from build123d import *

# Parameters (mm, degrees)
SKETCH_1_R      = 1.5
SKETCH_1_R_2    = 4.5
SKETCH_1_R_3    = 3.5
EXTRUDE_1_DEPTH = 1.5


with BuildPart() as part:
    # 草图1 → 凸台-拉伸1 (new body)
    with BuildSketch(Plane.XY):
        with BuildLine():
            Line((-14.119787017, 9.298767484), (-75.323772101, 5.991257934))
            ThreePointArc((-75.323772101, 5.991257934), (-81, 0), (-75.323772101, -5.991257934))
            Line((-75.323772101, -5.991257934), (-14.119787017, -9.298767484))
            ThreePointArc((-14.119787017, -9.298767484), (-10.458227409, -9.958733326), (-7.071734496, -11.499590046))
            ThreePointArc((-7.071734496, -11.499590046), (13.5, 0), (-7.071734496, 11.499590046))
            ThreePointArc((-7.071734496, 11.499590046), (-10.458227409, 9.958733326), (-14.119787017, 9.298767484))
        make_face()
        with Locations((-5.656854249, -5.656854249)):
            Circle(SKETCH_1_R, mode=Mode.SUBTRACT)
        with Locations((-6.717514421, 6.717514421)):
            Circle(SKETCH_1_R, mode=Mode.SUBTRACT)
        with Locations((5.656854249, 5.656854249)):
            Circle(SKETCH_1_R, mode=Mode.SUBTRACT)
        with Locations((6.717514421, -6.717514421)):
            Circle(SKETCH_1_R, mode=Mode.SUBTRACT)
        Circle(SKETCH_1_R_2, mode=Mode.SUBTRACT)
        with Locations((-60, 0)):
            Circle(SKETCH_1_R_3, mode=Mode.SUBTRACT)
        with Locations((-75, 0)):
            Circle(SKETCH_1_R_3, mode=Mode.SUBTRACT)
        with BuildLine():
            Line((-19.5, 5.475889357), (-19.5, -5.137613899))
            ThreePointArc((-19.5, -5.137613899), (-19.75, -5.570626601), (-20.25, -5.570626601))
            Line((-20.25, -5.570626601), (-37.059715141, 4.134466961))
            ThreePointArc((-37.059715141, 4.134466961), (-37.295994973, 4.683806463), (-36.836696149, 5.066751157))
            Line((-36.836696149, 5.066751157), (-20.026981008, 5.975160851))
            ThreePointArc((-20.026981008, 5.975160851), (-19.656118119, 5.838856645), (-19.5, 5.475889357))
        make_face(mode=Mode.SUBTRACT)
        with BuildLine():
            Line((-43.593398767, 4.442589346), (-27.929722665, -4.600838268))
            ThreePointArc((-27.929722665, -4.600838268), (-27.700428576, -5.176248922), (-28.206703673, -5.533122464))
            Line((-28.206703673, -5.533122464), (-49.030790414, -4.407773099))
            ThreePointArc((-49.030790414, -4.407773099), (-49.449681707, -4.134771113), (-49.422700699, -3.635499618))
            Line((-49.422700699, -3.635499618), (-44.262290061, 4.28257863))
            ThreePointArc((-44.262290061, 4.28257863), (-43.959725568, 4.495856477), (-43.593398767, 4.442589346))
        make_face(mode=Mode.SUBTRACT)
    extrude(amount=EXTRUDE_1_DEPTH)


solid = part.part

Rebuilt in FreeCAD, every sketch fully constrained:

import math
import FreeCAD as App
import Part
import Sketcher
Q = App.Units.Quantity

doc = App.newDocument("Part")
body = doc.addObject("PartDesign::Body", "Body")

# Sketch on XY plane
sketch1 = body.newObject("Sketcher::SketchObject", "Sketch")
sketch1.AttachmentSupport = (doc.getObject("XY_Plane"), [""])
sketch1.MapMode = "FlatFace"
sketch1.addGeometry([
    Part.LineSegment(App.Vector(-14.12, 9.3, 0), App.Vector(-75.32, 5.99, 0)),  # 0
    Part.ArcOfCircle(Part.Circle(App.Vector(-75, 0, 0), App.Vector(0, 0, 1), 6), math.radians(93), math.radians(267)),  # 1
    Part.LineSegment(App.Vector(-75.32, -5.99, 0), App.Vector(-14.12, -9.3, 0)),  # 2
    Part.ArcOfCircle(Part.Circle(App.Vector(-14.93, -24.28, 0), App.Vector(0, 0, 1), 15), math.radians(58), math.radians(87)),  # 3
    Part.ArcOfCircle(Part.Circle(App.Vector(0, 0, 0), App.Vector(0, 0, 1), 13.5), math.radians(-122), math.radians(122)),  # 4
    Part.ArcOfCircle(Part.Circle(App.Vector(-14.93, 24.28, 0), App.Vector(0, 0, 1), 15), math.radians(-87), math.radians(-58)),  # 5
    Part.ArcOfCircle(Part.Circle(App.Vector(-43.84, 4.01, 0), App.Vector(0, 0, 1), 0.5), math.radians(60), math.radians(147)),  # 6
    Part.LineSegment(App.Vector(-43.59, 4.44, 0), App.Vector(-27.93, -4.6, 0)),  # 7
    Part.ArcOfCircle(Part.Circle(App.Vector(-28.18, -5.03, 0), App.Vector(0, 0, 1), 0.5), math.radians(-93), math.radians(60)),  # 8
    Part.LineSegment(App.Vector(-28.21, -5.53, 0), App.Vector(-49.03, -4.41, 0)),  # 9
    Part.ArcOfCircle(Part.Circle(App.Vector(-49, -3.91, 0), App.Vector(0, 0, 1), 0.5), math.radians(147), math.radians(267)),  # 10
    Part.LineSegment(App.Vector(-49.42, -3.64, 0), App.Vector(-44.26, 4.28, 0)),  # 11
    Part.Circle(App.Vector(6.72, -6.72, 0), App.Vector(0, 0, 1), 1.5),  # 12
    Part.Circle(App.Vector(-5.66, -5.66, 0), App.Vector(0, 0, 1), 1.5),  # 13
    Part.Circle(App.Vector(-75, 0, 0), App.Vector(0, 0, 1), 3.5),  # 14
    Part.Circle(App.Vector(-60, 0, 0), App.Vector(0, 0, 1), 3.5),  # 15
    Part.ArcOfCircle(Part.Circle(App.Vector(-20, 5.48, 0), App.Vector(0, 0, 1), 0.5), math.radians(0), math.radians(93)),  # 16
    Part.LineSegment(App.Vector(-19.5, 5.48, 0), App.Vector(-19.5, -5.14, 0)),  # 17
    Part.ArcOfCircle(Part.Circle(App.Vector(-20, -5.14, 0), App.Vector(0, 0, 1), 0.5), math.radians(-120), math.radians(0)),  # 18
    Part.LineSegment(App.Vector(-20.25, -5.57, 0), App.Vector(-37.06, 4.13, 0)),  # 19
    Part.ArcOfCircle(Part.Circle(App.Vector(-36.81, 4.57, 0), App.Vector(0, 0, 1), 0.5), math.radians(93), math.radians(240)),  # 20
    Part.LineSegment(App.Vector(-36.84, 5.07, 0), App.Vector(-20.03, 5.98, 0)),  # 21
    Part.Circle(App.Vector(0, 0, 0), App.Vector(0, 0, 1), 4.5),  # 22
    Part.Circle(App.Vector(5.66, 5.66, 0), App.Vector(0, 0, 1), 1.5),  # 23
    Part.Circle(App.Vector(-6.72, 6.72, 0), App.Vector(0, 0, 1), 1.5),  # 24
], False)
sketch1.addConstraint([
    Sketcher.Constraint("Tangent", 0, 2, 1, 1),
    Sketcher.Constraint("Tangent", 1, 2, 2, 1),
    Sketcher.Constraint("Tangent", 2, 2, 3, 2),
    Sketcher.Constraint("Tangent", 3, 1, 4, 1),
    Sketcher.Constraint("Tangent", 4, 2, 5, 2),
    Sketcher.Constraint("Tangent", 5, 1, 0, 1),
    Sketcher.Constraint("Tangent", 6, 1, 7, 1),
    Sketcher.Constraint("Tangent", 7, 2, 8, 2),
    Sketcher.Constraint("Tangent", 8, 1, 9, 1),
    Sketcher.Constraint("Tangent", 9, 2, 10, 2),
    Sketcher.Constraint("Tangent", 10, 1, 11, 1),
    Sketcher.Constraint("Tangent", 11, 2, 6, 2),
    Sketcher.Constraint("Tangent", 16, 1, 17, 1),
    Sketcher.Constraint("Tangent", 17, 2, 18, 2),
    Sketcher.Constraint("Tangent", 18, 1, 19, 1),
    Sketcher.Constraint("Tangent", 19, 2, 20, 2),
    Sketcher.Constraint("Tangent", 20, 1, 21, 1),
    Sketcher.Constraint("Tangent", 21, 2, 16, 2),
    Sketcher.Constraint("Vertical", 17),
    Sketcher.Constraint("Coincident", 4, 3, -1, 1),
    Sketcher.Constraint("Coincident", 22, 3, -1, 1),
    Sketcher.Constraint("Coincident", 14, 3, 1, 3),
    Sketcher.Constraint("Equal", 3, 5),
    Sketcher.Constraint("Equal", 6, 8),
    Sketcher.Constraint("Equal", 8, 10),
    Sketcher.Constraint("Equal", 12, 13),
    Sketcher.Constraint("Equal", 14, 15),
    Sketcher.Constraint("Equal", 10, 16),
    Sketcher.Constraint("Equal", 16, 18),
    Sketcher.Constraint("Equal", 18, 20),
    Sketcher.Constraint("Equal", 13, 23),
    Sketcher.Constraint("Equal", 23, 24),
    Sketcher.Constraint("Symmetric", 13, 3, 23, 3, -1, 1),
    Sketcher.Constraint("Symmetric", 12, 3, 24, 3, -1, 1),
    Sketcher.Constraint("Symmetric", 0, 2, 1, 2, -1),
    Sketcher.Constraint("PointOnObject", 15, 3, -1),
    Sketcher.Constraint("Parallel", 2, 9),
    Sketcher.Constraint("Parallel", 7, 19),
    Sketcher.Constraint("Parallel", 0, 21),
    Sketcher.Constraint("Diameter", 12, 3.0),
    Sketcher.Constraint("Diameter", 14, 7.0),
    Sketcher.Constraint("Diameter", 22, 9.0),
    Sketcher.Constraint("Radius", 1, 6.0),
    Sketcher.Constraint("Radius", 3, 15.0),
    Sketcher.Constraint("Radius", 4, 13.5),
    Sketcher.Constraint("Radius", 6, 0.5),
    Sketcher.Constraint("Angle", 7, Q("-30 deg")),
    Sketcher.Constraint("DistanceX", 1, 3, -1, 1, 75.0),
    Sketcher.Constraint("DistanceX", 15, 3, -1, 1, 60.0),
    Sketcher.Constraint("DistanceX", 16, 3, -1, 1, 20.0),
    Sketcher.Constraint("DistanceY", 10, 3, 10, 1, 0.273002),
    Sketcher.Constraint("DistanceX", 6, 3, -1, 1, 43.843399),
    Sketcher.Constraint("DistanceY", 10, 3, -1, 1, 3.908502),
    Sketcher.Constraint("DistanceX", 10, 1, -1, 1, 49.422701),
    Sketcher.Constraint("DistanceY", 3, 3, 18, 3, 19.139298),
    Sketcher.Constraint("DistanceY", 16, 3, 4, 2, 6.023701),
    Sketcher.Constraint("DistanceY", 11, 2, 20, 3, 0.284901),
    Sketcher.Constraint("DistanceX", 3, 3, 12, 3, 21.646732),
    Sketcher.Constraint("DistanceY", 12, 3, 6, 3, 10.727091),
    Sketcher.Constraint("DistanceX", 13, 3, 12, 3, 12.374369),
    Sketcher.Constraint("DistanceY", 12, 3, 13, 3, 1.06066),
])
pad1 = body.newObject("PartDesign::Pad", "Pad")
pad1.Profile = sketch1
pad1.Length = 1.5

doc.recompute()
